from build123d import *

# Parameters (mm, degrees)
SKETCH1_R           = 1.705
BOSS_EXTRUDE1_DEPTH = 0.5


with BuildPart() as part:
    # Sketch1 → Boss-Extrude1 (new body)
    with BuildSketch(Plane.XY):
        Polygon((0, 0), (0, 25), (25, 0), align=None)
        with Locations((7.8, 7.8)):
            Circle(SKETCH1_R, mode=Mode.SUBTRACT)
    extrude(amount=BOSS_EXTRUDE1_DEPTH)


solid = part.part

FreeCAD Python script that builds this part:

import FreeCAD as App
import Part
import Sketcher
from FreeCAD import Vector

doc = App.newDocument("Part")
body = doc.addObject("PartDesign::Body", "Body")

# Sketch on XY plane
sketch1 = body.newObject("Sketcher::SketchObject", "Sketch")
sketch1.AttachmentSupport = (doc.getObject("XY_Plane"), [""])
sketch1.MapMode = "FlatFace"
sketch1.addGeometry(Part.LineSegment(Vector(0, 25, 0), Vector(0, 0, 0)), False)
sketch1.addGeometry(Part.LineSegment(Vector(0, 0, 0), Vector(25, 0, 0)), False)
sketch1.addGeometry(Part.LineSegment(Vector(25, 0, 0), Vector(0, 25, 0)), False)
sketch1.addGeometry(Part.Circle(Vector(7.8, 7.8, 0), Vector(0, 0, 1), 1.705), False)
sketch1.addConstraint(Sketcher.Constraint("Coincident", 0, 2, 1, 1))
sketch1.addConstraint(Sketcher.Constraint("Coincident", 1, 2, 2, 1))
sketch1.addConstraint(Sketcher.Constraint("Coincident", 2, 2, 0, 1))
sketch1.addConstraint(Sketcher.Constraint("Vertical", 0))
sketch1.addConstraint(Sketcher.Constraint("Horizontal", 1))
sketch1.addConstraint(Sketcher.Constraint("Coincident", 0, 2, -1, 1))
sketch1.addConstraint(Sketcher.Constraint("Equal", 1, 0))
sketch1.addConstraint(Sketcher.Constraint("Diameter", 3, 3.41))
sketch1.addConstraint(Sketcher.Constraint("DistanceX", 1, 1, 1, 2, 25.0))
sketch1.addConstraint(Sketcher.Constraint("DistanceX", -1, 1, 3, 3, 7.8))
sketch1.addConstraint(Sketcher.Constraint("DistanceY", -1, 1, 3, 3, 7.8))
pad1 = body.newObject("PartDesign::Pad", "Pad")
pad1.Profile = sketch1
pad1.Length = 0.5

doc.recompute()
